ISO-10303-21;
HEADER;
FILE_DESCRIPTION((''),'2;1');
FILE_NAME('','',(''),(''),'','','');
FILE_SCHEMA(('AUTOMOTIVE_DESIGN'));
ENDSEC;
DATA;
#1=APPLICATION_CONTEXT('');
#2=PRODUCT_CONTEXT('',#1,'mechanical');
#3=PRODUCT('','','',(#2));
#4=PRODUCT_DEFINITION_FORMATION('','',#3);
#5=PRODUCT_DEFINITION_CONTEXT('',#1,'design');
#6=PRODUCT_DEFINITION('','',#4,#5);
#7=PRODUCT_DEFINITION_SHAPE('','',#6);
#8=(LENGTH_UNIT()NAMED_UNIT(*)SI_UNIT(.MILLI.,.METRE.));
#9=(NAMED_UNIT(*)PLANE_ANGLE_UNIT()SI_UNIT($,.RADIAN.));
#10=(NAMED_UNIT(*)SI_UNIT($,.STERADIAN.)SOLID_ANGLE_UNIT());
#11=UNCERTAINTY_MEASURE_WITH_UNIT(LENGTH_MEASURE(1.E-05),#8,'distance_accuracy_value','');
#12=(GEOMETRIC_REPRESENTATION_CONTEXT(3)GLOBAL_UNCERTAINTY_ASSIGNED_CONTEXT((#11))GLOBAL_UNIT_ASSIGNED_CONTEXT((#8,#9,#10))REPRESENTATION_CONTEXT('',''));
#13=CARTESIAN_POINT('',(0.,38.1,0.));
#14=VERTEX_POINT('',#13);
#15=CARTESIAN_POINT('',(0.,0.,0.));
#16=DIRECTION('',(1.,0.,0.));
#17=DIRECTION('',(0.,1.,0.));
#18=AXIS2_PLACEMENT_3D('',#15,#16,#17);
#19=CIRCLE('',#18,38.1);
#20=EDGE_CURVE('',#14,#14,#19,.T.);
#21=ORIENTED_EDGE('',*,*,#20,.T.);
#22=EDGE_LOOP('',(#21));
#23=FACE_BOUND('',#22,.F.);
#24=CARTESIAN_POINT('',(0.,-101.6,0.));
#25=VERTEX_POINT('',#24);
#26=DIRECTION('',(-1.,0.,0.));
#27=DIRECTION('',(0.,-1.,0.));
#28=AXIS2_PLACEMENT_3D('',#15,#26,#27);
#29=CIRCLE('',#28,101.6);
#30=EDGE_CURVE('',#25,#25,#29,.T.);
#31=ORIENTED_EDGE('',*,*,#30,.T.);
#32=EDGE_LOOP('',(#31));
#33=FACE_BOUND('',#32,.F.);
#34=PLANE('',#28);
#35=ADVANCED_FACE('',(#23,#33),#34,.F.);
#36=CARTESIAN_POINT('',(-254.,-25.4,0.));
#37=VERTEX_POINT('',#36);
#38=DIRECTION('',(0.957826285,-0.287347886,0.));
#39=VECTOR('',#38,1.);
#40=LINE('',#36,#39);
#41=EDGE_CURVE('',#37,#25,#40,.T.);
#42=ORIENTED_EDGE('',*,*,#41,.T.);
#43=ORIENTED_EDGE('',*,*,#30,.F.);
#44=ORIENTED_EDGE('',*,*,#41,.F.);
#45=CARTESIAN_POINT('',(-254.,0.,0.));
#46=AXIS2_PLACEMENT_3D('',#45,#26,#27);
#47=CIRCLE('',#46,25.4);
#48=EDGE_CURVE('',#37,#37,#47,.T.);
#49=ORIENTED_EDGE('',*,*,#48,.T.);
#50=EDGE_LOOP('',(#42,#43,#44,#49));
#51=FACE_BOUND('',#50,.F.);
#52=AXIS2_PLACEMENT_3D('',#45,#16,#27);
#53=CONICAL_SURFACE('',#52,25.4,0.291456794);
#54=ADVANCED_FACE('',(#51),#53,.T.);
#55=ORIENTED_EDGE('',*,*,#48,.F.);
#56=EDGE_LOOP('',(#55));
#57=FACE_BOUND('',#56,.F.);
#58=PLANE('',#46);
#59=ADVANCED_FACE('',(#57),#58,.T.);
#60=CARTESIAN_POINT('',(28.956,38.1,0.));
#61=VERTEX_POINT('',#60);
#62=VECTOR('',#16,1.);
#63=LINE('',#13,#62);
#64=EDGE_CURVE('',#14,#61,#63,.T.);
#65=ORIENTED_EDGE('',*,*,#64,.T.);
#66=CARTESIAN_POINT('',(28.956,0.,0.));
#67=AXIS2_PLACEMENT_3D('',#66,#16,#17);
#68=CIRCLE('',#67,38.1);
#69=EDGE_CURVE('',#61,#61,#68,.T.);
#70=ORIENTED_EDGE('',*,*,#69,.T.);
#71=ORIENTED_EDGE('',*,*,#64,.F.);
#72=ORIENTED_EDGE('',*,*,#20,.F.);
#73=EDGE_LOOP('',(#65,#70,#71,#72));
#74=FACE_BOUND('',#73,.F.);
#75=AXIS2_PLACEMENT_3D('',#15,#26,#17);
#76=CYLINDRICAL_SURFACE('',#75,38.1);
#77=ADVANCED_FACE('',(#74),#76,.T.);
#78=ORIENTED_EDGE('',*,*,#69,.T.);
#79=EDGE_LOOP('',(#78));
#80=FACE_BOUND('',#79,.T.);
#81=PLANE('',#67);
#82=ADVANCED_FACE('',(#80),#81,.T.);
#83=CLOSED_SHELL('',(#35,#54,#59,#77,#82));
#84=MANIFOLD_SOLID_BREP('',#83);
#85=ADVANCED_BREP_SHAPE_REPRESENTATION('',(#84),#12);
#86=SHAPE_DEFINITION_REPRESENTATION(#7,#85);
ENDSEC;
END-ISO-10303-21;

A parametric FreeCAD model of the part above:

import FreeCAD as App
import Part
import Sketcher
Q = App.Units.Quantity

doc = App.newDocument("Part")
body = doc.addObject("PartDesign::Body", "Body")

sketch1 = doc.addObject("Sketcher::SketchObject", "Sketch")
body.addObject(sketch1)
sketch1.AttachmentSupport = (doc.XY_Plane, [""])
sketch1.MapMode = "FlatFace"
sketch1.addGeometry([
    Part.LineSegment(App.Vector(0, -101.6, 0), App.Vector(0, 0, 0)),
    Part.LineSegment(App.Vector(0, 0, 0), App.Vector(-254, 0, 0)),
    Part.LineSegment(App.Vector(-254, 0, 0), App.Vector(-254, -25.4, 0)),
    Part.LineSegment(App.Vector(-254, -25.4, 0), App.Vector(0, -101.6, 0)),
], False)
sketch1.addConstraint([
    Sketcher.Constraint("Coincident", 0, 2, 1, 1),
    Sketcher.Constraint("Coincident", 1, 2, 2, 1),
    Sketcher.Constraint("Coincident", 2, 2, 3, 1),
    Sketcher.Constraint("Coincident", 3, 2, 0, 1),
    Sketcher.Constraint("Vertical", 0),
    Sketcher.Constraint("Horizontal", 1),
    Sketcher.Constraint("Vertical", 2),
    Sketcher.Constraint("Coincident", 0, 2, -1, 1),
    Sketcher.Constraint("DistanceX", 1, 2, 1, 1, Q("10 in")),
    Sketcher.Constraint("DistanceY", 0, 1, 0, 2, Q("4 in")),
    Sketcher.Constraint("DistanceY", 2, 2, 2, 1, Q("1 in")),
])
revolution = doc.addObject("PartDesign::Revolution", "Revolution")
body.addObject(revolution)
revolution.Profile = sketch1
revolution.ReferenceAxis = (sketch1, ["H_Axis"])
revolution.Angle = 360

sketch2 = doc.addObject("Sketcher::SketchObject", "Sketch001")
body.addObject(sketch2)
sketch2.AttachmentSupport = (doc.YZ_Plane, [""])
sketch2.MapMode = "FlatFace"
sketch2.addGeometry(Part.Circle(App.Vector(0, 0, 0), App.Vector(0, 0, 1), 38.1), False)
sketch2.addConstraint([
    Sketcher.Constraint("Coincident", 0, 3, -1, 1),
    Sketcher.Constraint("Diameter", 0, Q("3 in")),
])
pad1 = doc.addObject("PartDesign::Pad", "Pad")
body.addObject(pad1)
pad1.Profile = sketch2
pad1.Length = Q("1.14 in")

doc.recompute()
